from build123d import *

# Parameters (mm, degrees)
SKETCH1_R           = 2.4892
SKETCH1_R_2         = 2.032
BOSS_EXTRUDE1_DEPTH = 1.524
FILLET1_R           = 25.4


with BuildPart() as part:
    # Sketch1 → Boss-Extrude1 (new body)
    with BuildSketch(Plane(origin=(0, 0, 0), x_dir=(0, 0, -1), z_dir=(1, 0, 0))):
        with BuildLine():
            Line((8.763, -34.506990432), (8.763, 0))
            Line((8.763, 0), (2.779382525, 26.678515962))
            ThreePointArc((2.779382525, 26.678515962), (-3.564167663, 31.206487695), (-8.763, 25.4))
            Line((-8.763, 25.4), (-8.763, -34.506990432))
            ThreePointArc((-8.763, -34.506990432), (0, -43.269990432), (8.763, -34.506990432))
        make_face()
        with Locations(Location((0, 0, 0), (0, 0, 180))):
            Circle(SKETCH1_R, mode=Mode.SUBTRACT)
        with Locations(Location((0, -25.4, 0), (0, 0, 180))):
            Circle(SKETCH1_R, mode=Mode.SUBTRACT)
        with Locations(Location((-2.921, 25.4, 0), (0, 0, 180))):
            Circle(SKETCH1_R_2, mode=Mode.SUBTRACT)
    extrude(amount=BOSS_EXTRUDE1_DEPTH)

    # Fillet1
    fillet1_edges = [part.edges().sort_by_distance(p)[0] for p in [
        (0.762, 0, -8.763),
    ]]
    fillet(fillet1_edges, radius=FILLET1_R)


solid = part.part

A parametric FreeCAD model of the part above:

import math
import FreeCAD as App
import Part
import Sketcher

V = App.Vector
Q = App.Units.Quantity


def edges_at(feature, points):
    """Names of the edges that pass closest to the given points."""
    edges = feature.Shape.Edges
    near = lambda p: min(range(len(edges)), key=lambda i: edges[i].distToShape(Part.Vertex(*p))[0])
    return sorted({f"Edge{near(p) + 1}" for p in points})

doc = App.newDocument("Part")
body = doc.addObject("PartDesign::Body", "Body")

# Sketch on YZ plane
sketch1 = body.newObject("Sketcher::SketchObject", "Sketch")
sketch1.AttachmentSupport = (doc.getObject("YZ_Plane"), [""])
sketch1.MapMode = "FlatFace"
sketch1.addGeometry([
    Part.LineSegment(V(-34.5, -8.8, 0), V(0, -8.8, 0)),  # 0
    Part.LineSegment(V(0, -8.8, 0), V(26.7, -2.8, 0)),  # 1
    Part.ArcOfCircle(Part.Circle(V(25.4, 2.9, 0), V(0, 0, 1), 5.8), math.radians(-77), math.radians(90)),  # 2
    Part.LineSegment(V(25.4, 8.8, 0), V(-34.5, 8.8, 0)),  # 3
    Part.ArcOfCircle(Part.Circle(V(-34.5, 0, 0), V(0, 0, 1), 8.8), math.radians(90), math.radians(270)),  # 4
    Part.Circle(V(-25.4, 0, 0), V(0, 0, 1), 2.5),  # 5
    Part.Circle(V(25.4, 2.9, 0), V(0, 0, 1), 2),  # 6
    Part.Circle(V(0, 0, 0), V(0, 0, 1), 2.5),  # 7
], False)
sketch1.addConstraint([
    Sketcher.Constraint("Coincident", 0, 2, 1, 1),
    Sketcher.Constraint("Tangent", 1, 2, 2, 1),
    Sketcher.Constraint("Tangent", 2, 2, 3, 1),
    Sketcher.Constraint("Tangent", 3, 2, 4, 1),
    Sketcher.Constraint("Tangent", 4, 2, 0, 1),
    Sketcher.Constraint("Horizontal", 0),
    Sketcher.Constraint("Horizontal", 3),
    Sketcher.Constraint("Coincident", 7, 3, -1, 1),
    Sketcher.Constraint("Coincident", 6, 3, 2, 3),
    Sketcher.Constraint("Equal", 5, 7),
    Sketcher.Constraint("PointOnObject", 4, 3, -1),
    Sketcher.Constraint("PointOnObject", 5, 3, -1),
    Sketcher.Constraint("PointOnObject", 0, 2, -2),
    Sketcher.Constraint("Diameter", 6, Q("0.16 in")),
    Sketcher.Constraint("Radius", 2, Q("0.23 in")),
    Sketcher.Constraint("Diameter", 5, Q("0.196 in")),
    Sketcher.Constraint("DistanceX", -1, 1, 2, 3, Q("1 in")),
    Sketcher.Constraint("DistanceX", 5, 3, -1, 1, Q("1 in")),
    Sketcher.Constraint("Radius", 4, Q("0.345 in")),
    Sketcher.Constraint("DistanceX", 0, 1, 0, 2, 34.50699),
])
pad1 = body.newObject("PartDesign::Pad", "Pad")
pad1.Profile = sketch1
pad1.Length = Q("0.06 in")
doc.recompute()

fillet = body.newObject("PartDesign::Fillet", "Fillet")
fillet.Base = (pad1, edges_at(pad1, [(0.762, 0, -8.763)]))
fillet.Radius = Q("1 in")

doc.recompute()
